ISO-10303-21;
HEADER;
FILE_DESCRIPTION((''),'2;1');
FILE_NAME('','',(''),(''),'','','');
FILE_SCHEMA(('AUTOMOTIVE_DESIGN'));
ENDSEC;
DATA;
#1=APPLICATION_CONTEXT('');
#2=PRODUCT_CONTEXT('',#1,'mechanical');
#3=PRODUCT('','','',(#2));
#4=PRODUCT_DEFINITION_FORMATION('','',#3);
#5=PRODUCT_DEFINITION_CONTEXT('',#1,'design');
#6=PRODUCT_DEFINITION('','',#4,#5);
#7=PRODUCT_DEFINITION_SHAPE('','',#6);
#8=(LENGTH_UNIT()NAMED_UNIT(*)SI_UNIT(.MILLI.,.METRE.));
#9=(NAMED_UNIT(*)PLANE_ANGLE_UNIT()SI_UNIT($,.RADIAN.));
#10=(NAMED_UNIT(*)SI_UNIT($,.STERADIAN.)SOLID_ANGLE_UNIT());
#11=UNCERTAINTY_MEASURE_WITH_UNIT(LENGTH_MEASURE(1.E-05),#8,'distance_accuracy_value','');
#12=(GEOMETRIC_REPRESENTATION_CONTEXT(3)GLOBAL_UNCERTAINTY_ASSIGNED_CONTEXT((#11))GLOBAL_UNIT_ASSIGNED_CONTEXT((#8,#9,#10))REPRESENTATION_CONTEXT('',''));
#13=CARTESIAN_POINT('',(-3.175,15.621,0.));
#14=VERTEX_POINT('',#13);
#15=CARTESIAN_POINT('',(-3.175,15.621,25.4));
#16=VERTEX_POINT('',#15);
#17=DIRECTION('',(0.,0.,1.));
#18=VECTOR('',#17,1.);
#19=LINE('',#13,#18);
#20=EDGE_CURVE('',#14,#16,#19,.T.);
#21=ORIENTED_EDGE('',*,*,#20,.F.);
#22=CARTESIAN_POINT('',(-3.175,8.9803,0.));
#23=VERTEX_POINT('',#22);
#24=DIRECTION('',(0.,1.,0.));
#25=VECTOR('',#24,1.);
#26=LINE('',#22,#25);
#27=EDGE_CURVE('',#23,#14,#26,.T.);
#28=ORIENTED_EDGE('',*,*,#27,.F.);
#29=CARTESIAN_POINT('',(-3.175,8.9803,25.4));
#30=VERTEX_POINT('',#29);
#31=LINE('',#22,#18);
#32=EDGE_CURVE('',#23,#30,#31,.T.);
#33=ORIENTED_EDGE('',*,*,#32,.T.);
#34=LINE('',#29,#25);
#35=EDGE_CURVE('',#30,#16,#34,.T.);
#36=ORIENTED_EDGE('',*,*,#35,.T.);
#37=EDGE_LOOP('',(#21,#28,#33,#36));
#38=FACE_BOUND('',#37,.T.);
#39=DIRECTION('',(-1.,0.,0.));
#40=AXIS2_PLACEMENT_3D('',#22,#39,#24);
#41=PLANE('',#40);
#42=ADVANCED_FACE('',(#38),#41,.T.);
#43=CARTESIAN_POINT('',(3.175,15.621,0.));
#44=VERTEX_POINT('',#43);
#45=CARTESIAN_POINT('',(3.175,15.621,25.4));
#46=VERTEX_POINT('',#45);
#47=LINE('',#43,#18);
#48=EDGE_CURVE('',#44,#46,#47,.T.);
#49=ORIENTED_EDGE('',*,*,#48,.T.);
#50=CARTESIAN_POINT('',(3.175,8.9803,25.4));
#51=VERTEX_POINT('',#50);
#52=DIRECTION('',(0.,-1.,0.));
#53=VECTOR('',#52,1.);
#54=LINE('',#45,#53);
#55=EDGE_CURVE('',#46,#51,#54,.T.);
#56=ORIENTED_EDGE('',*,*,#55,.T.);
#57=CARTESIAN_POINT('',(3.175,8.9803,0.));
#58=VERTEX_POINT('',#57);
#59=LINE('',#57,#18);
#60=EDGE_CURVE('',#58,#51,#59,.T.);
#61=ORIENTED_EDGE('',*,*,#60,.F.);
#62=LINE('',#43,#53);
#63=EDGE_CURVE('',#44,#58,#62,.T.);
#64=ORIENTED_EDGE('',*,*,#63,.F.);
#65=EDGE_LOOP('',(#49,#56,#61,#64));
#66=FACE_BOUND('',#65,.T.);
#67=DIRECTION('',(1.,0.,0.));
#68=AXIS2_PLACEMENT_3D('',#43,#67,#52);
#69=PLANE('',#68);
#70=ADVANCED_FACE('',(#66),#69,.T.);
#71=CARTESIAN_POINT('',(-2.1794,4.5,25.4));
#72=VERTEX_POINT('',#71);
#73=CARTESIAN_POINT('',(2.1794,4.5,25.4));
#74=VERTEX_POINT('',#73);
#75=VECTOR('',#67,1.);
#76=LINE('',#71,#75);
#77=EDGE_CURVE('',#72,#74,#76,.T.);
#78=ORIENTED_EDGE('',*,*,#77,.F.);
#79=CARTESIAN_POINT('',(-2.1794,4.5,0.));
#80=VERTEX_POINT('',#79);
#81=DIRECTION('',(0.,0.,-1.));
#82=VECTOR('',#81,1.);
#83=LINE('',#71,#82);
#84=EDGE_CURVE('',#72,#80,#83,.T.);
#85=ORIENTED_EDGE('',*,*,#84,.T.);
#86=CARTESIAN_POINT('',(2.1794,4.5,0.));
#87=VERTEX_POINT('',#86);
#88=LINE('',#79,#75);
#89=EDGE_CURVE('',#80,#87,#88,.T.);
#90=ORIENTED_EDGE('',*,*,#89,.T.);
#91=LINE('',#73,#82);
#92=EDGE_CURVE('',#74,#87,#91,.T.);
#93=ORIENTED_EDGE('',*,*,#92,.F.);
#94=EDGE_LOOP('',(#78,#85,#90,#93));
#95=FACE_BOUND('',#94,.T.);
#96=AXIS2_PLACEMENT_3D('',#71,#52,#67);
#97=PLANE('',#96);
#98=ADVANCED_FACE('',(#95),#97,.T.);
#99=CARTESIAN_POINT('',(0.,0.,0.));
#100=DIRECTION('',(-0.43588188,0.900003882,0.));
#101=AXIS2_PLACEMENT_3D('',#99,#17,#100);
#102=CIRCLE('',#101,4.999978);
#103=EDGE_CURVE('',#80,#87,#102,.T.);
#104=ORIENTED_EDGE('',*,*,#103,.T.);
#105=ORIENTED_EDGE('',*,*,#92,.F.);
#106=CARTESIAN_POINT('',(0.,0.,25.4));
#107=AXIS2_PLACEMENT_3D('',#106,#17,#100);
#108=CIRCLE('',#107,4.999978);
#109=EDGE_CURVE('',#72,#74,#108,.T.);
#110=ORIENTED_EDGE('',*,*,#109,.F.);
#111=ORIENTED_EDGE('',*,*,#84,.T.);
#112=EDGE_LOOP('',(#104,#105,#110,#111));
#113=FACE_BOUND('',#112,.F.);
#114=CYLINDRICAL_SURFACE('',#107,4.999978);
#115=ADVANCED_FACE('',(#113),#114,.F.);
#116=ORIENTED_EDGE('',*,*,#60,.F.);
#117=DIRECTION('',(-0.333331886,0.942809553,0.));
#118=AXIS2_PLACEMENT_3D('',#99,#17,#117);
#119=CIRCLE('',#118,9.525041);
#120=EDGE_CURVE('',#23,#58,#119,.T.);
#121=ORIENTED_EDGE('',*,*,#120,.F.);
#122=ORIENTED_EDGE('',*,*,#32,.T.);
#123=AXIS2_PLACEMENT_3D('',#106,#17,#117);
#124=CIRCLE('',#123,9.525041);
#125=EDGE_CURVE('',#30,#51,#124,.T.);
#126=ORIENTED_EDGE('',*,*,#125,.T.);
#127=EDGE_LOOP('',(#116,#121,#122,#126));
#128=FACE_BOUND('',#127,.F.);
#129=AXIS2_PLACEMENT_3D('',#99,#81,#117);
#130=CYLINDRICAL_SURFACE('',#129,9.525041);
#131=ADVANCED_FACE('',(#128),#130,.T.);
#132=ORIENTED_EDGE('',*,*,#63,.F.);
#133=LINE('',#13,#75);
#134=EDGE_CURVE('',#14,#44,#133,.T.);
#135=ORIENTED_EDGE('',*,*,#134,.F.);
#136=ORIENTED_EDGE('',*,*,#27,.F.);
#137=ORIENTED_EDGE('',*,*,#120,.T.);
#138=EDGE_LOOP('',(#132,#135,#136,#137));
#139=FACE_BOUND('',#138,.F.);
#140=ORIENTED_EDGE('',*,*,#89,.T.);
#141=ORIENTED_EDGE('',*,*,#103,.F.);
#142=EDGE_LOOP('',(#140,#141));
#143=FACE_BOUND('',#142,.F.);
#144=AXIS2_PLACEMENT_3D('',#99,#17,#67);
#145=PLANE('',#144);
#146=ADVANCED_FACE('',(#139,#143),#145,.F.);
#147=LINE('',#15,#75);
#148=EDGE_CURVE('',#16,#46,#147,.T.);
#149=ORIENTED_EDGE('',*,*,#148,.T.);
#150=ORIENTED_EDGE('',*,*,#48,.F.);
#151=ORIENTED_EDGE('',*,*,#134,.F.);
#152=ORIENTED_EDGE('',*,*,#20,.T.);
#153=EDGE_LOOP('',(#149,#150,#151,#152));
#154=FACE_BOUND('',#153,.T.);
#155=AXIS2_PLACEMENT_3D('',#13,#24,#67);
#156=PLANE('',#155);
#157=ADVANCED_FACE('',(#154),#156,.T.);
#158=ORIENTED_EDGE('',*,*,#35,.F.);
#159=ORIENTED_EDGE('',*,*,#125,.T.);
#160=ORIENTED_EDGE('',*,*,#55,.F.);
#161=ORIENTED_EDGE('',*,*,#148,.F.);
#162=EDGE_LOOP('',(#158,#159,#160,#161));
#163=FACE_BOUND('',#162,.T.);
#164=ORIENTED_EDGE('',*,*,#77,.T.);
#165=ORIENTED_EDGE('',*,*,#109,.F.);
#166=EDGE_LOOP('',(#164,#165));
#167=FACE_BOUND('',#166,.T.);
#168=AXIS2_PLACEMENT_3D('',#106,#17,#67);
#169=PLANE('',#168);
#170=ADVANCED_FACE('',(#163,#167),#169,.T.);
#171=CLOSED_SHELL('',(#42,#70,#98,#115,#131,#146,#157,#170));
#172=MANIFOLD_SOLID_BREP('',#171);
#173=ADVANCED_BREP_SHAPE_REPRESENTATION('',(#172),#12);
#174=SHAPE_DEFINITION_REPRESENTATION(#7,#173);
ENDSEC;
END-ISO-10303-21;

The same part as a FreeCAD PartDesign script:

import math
import FreeCAD as App
import Part
import Sketcher

V = App.Vector
Q = App.Units.Quantity

doc = App.newDocument("Part")
params = doc.addObject("Spreadsheet::Sheet", "Params")
for row, (alias, value) in enumerate([
    ("sketch1_radius", "0.375 in"),
    ("sketch1_width", "0.25 in"),
    ("pad1_length", "1 in"),
    ("pocket1_length", "1 in"),
], start=1):
    params.set(f"A{row}", alias)
    params.set(f"B{row}", "=" + value)
    params.setAlias(f"B{row}", alias)

body = doc.addObject("PartDesign::Body", "Body")

sketch1 = body.newObject("Sketcher::SketchObject", "Sketch")
sketch1.AttachmentSupport = (doc.getObject("XY_Plane"), [""])
sketch1.MapMode = "FlatFace"
sketch1.addGeometry([
    Part.LineSegment(V(-3.175, 15.621, 0), V(-3.175, 8.9803, 0)),
    Part.ArcOfCircle(Part.Circle(V(0, 0, 0), V(0, 0, 1), 9.525041), math.radians(109.471133), math.radians(430.528867)),
    Part.LineSegment(V(3.175, 8.9803, 0), V(3.175, 15.621, 0)),
    Part.LineSegment(V(3.175, 15.621, 0), V(-3.175, 15.621, 0)),
], False)
sketch1.addConstraint([
    Sketcher.Constraint("Coincident", 0, 2, 1, 1),
    Sketcher.Constraint("Coincident", 1, 2, 2, 1),
    Sketcher.Constraint("Coincident", 2, 2, 3, 1),
    Sketcher.Constraint("Coincident", 3, 2, 0, 1),
    Sketcher.Constraint("Vertical", 0),
    Sketcher.Constraint("Vertical", 2),
    Sketcher.Constraint("Horizontal", 3),
    Sketcher.Constraint("Coincident", 1, 3, -1, 1),
    Sketcher.Constraint("Horizontal", 0, 2, 1, 2),
    Sketcher.Constraint("Radius", 1, Q("0.375 in")),
    Sketcher.Constraint("DistanceX", 3, 2, 3, 1, Q("0.25 in")),
    Sketcher.Constraint("DistanceY", -1, 1, 2, 2, Q("0.615 in")),
])
sketch1.setExpression("Constraints[9]", "Params.sketch1_radius")
sketch1.setExpression("Constraints[10]", "Params.sketch1_width")
pad1 = body.newObject("PartDesign::Pad", "Pad")
pad1.Profile = sketch1
pad1.setExpression("Length", "Params.pad1_length")

sketch2 = body.newObject("Sketcher::SketchObject", "Sketch001")
sketch2.AttachmentSupport = (doc.getObject("XY_Plane"), [""])
sketch2.MapMode = "FlatFace"
sketch2.AttachmentOffset = App.Placement(V(0, 0, 1 * 25.4), App.Rotation())
sketch2.addGeometry([
    Part.LineSegment(V(2.1794, 4.5, 0), V(-2.1794, 4.5, 0)),
    Part.ArcOfCircle(Part.Circle(V(0, 0, 0), V(0, 0, 1), 4.999978), math.radians(115.841423), math.radians(424.158577)),
], False)
sketch2.addConstraint([
    Sketcher.Constraint("Coincident", 0, 1, 1, 2),
    Sketcher.Constraint("Coincident", 1, 1, 0, 2),
    Sketcher.Constraint("Horizontal", 0),
    Sketcher.Constraint("Coincident", 1, 3, -1, 1),
    Sketcher.Constraint("Radius", 1, 5.0),
    Sketcher.Constraint("DistanceX", 0, 2, 0, 1, Q("0.1716 in")),
])
pocket1 = body.newObject("PartDesign::Pocket", "Pocket")
pocket1.Profile = sketch2
pocket1.setExpression("Length", "Params.pocket1_length")

doc.recompute()
